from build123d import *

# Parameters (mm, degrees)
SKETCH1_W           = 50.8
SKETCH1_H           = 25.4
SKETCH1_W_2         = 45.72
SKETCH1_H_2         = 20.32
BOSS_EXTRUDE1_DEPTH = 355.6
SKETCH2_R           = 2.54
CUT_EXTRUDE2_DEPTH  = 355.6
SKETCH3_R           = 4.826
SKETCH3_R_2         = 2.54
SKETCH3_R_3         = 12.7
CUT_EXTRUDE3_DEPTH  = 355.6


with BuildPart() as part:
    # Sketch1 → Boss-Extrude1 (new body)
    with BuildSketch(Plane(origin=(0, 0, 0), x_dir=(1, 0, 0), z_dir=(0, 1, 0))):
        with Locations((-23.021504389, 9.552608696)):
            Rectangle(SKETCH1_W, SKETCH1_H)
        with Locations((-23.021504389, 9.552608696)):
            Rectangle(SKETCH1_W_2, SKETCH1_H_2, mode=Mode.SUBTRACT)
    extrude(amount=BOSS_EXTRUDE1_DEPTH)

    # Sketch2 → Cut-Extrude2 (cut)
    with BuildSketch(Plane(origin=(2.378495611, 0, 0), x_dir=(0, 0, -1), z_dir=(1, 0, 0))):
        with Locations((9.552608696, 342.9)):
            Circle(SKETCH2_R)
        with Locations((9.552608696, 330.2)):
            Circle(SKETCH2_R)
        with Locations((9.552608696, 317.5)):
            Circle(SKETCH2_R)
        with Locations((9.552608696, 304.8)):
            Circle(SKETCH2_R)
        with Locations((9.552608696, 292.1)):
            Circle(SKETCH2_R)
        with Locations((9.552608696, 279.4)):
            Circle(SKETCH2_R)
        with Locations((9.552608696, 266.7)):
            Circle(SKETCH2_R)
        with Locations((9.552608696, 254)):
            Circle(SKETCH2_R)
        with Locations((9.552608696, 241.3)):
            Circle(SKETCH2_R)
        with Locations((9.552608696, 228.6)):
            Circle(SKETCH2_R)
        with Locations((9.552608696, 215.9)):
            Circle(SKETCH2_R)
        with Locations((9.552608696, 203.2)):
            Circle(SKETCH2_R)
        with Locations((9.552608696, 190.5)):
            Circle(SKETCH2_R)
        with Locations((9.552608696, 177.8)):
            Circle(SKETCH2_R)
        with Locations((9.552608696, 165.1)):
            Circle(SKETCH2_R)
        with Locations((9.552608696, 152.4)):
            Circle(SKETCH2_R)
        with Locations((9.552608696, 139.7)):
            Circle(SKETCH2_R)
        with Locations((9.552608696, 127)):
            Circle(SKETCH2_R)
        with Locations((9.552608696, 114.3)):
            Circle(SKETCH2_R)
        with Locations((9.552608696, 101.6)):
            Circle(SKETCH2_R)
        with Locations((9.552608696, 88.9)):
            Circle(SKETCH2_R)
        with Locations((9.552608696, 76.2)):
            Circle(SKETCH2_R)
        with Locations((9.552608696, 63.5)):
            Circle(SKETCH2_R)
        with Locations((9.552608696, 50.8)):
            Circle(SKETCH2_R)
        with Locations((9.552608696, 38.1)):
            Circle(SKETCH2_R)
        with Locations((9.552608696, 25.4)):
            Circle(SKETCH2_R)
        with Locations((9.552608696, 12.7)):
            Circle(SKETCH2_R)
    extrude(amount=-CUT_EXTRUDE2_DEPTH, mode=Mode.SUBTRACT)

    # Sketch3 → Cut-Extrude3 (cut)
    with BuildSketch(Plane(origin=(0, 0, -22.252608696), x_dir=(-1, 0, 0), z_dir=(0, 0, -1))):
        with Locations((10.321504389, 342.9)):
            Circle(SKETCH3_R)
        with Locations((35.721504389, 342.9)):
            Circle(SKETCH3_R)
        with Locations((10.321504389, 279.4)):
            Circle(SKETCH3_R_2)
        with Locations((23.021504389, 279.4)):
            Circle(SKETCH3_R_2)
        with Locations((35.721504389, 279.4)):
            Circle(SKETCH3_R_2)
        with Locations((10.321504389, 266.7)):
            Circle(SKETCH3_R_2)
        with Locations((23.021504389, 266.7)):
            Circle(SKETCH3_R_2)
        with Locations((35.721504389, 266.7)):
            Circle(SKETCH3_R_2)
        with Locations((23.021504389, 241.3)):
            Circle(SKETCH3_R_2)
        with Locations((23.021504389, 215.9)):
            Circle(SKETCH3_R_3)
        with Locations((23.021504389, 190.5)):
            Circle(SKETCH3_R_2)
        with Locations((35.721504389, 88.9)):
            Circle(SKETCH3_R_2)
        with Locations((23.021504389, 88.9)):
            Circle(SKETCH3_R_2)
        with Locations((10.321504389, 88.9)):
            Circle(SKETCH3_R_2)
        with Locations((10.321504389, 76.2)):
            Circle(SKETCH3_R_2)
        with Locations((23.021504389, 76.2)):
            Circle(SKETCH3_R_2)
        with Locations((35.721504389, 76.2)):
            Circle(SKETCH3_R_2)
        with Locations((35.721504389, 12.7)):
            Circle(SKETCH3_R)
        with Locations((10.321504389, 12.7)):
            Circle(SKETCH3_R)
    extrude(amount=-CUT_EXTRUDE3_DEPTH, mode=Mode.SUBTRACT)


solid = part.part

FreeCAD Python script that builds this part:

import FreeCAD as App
import Part
import Sketcher

V = App.Vector
Q = App.Units.Quantity

doc = App.newDocument("Part")
params = doc.addObject("Spreadsheet::Sheet", "Params")
for row, (alias, value) in enumerate([
    ("sketch1_width", "2 in"),
    ("sketch1_height", "1 in"),
    ("sketch1_width2", "1.8 in"),
    ("sketch1_height2", "0.8 in"),
    ("pad1_length", "14 in"),
    ("sketch2_diameter", "0.2 in"),
    ("pocket1_length", "14 in"),
    ("sketch3_diameter", "1 in"),
    ("sketch3_diameter2", "0.2 in"),
    ("sketch3_diameter3", "0.38 in"),
    ("pocket2_length", "14 in"),
], start=1):
    params.set(f"A{row}", alias)
    params.set(f"B{row}", "=" + value)
    params.setAlias(f"B{row}", alias)

body = doc.addObject("PartDesign::Body", "Body")

# Sketch on XZ plane
sketch1 = body.newObject("Sketcher::SketchObject", "Sketch")
sketch1.AttachmentSupport = (doc.getObject("XZ_Plane"), [""])
sketch1.MapMode = "FlatFace"
sketch1.addGeometry(Part.LineSegment(V(-48.421504, -22.252609, 0), V(-48.421504, 3.147391, 0)), False)
sketch1.addGeometry(Part.LineSegment(V(-48.421504, 3.147391, 0), V(2.378496, 3.147391, 0)), False)
sketch1.addGeometry(Part.LineSegment(V(2.378496, 3.147391, 0), V(2.378496, -22.252609, 0)), False)
sketch1.addGeometry(Part.LineSegment(V(2.378496, -22.252609, 0), V(-48.421504, -22.252609, 0)), False)
sketch1.addGeometry(Part.LineSegment(V(-0.161504, 0.607391, 0), V(-45.881504, 0.607391, 0)), False)
sketch1.addGeometry(Part.LineSegment(V(-45.881504, 0.607391, 0), V(-45.881504, -19.712609, 0)), False)
sketch1.addGeometry(Part.LineSegment(V(-45.881504, -19.712609, 0), V(-0.161504, -19.712609, 0)), False)
sketch1.addGeometry(Part.LineSegment(V(-0.161504, -19.712609, 0), V(-0.161504, 0.607391, 0)), False)
sketch1.addConstraint(Sketcher.Constraint("Coincident", 0, 2, 1, 1))
sketch1.addConstraint(Sketcher.Constraint("Coincident", 1, 2, 2, 1))
sketch1.addConstraint(Sketcher.Constraint("Coincident", 2, 2, 3, 1))
sketch1.addConstraint(Sketcher.Constraint("Coincident", 3, 2, 0, 1))
sketch1.addConstraint(Sketcher.Constraint("Coincident", 4, 2, 5, 1))
sketch1.addConstraint(Sketcher.Constraint("Coincident", 5, 2, 6, 1))
sketch1.addConstraint(Sketcher.Constraint("Coincident", 6, 2, 7, 1))
sketch1.addConstraint(Sketcher.Constraint("Coincident", 7, 2, 4, 1))
sketch1.addConstraint(Sketcher.Constraint("Vertical", 0))
sketch1.addConstraint(Sketcher.Constraint("Horizontal", 1))
sketch1.addConstraint(Sketcher.Constraint("Vertical", 2))
sketch1.addConstraint(Sketcher.Constraint("Horizontal", 3))
sketch1.addConstraint(Sketcher.Constraint("Horizontal", 4))
sketch1.addConstraint(Sketcher.Constraint("Vertical", 5))
sketch1.addConstraint(Sketcher.Constraint("Horizontal", 6))
sketch1.addConstraint(Sketcher.Constraint("Vertical", 7))
sketch1.addConstraint(Sketcher.Constraint("DistanceX", 1, 1, 1, 2, Q("2 in")))
sketch1.addConstraint(Sketcher.Constraint("DistanceY", 0, 1, 0, 2, Q("1 in")))
sketch1.addConstraint(Sketcher.Constraint("DistanceX", 4, 2, 4, 1, Q("1.8 in")))
sketch1.addConstraint(Sketcher.Constraint("DistanceY", 5, 2, 5, 1, Q("0.8 in")))
sketch1.addConstraint(Sketcher.Constraint("DistanceX", 0, 2, 4, 2, Q("0.1 in")))
sketch1.addConstraint(Sketcher.Constraint("DistanceY", 4, 2, 0, 2, Q("0.1 in")))
sketch1.addConstraint(Sketcher.Constraint("DistanceY", -1, 1, 0, 2, Q("3.147391 mm")))
sketch1.addConstraint(Sketcher.Constraint("DistanceX", 0, 2, -1, 1, Q("48.421504 mm")))
sketch1.setExpression("Constraints[16]", "Params.sketch1_width")
sketch1.setExpression("Constraints[17]", "Params.sketch1_height")
sketch1.setExpression("Constraints[18]", "Params.sketch1_width2")
sketch1.setExpression("Constraints[19]", "Params.sketch1_height2")
pad1 = body.newObject("PartDesign::Pad", "Pad")
pad1.Profile = sketch1
pad1.setExpression("Length", "Params.pad1_length")
pad1.Reversed = True

# Sketch on YZ plane
sketch2 = body.newObject("Sketcher::SketchObject", "Sketch001")
sketch2.AttachmentSupport = (doc.getObject("YZ_Plane"), [""])
sketch2.MapMode = "FlatFace"
sketch2.AttachmentOffset = App.Placement(V(0, 0, 2.378496), App.Rotation())
sketch2.addGeometry(Part.Circle(V(342.9, -9.552609, 0), V(0, 0, 1), 2.54), False)
sketch2.addGeometry(Part.Circle(V(330.2, -9.552609, 0), V(0, 0, 1), 2.54), False)
sketch2.addGeometry(Part.Circle(V(317.5, -9.552609, 0), V(0, 0, 1), 2.54), False)
sketch2.addGeometry(Part.Circle(V(304.8, -9.552609, 0), V(0, 0, 1), 2.54), False)
sketch2.addGeometry(Part.Circle(V(292.1, -9.552609, 0), V(0, 0, 1), 2.54), False)
sketch2.addGeometry(Part.Circle(V(279.4, -9.552609, 0), V(0, 0, 1), 2.54), False)
sketch2.addGeometry(Part.Circle(V(266.7, -9.552609, 0), V(0, 0, 1), 2.54), False)
sketch2.addGeometry(Part.Circle(V(254, -9.552609, 0), V(0, 0, 1), 2.54), False)
sketch2.addGeometry(Part.Circle(V(241.3, -9.552609, 0), V(0, 0, 1), 2.54), False)
sketch2.addGeometry(Part.Circle(V(228.6, -9.552609, 0), V(0, 0, 1), 2.54), False)
sketch2.addGeometry(Part.Circle(V(215.9, -9.552609, 0), V(0, 0, 1), 2.54), False)
sketch2.addGeometry(Part.Circle(V(203.2, -9.552609, 0), V(0, 0, 1), 2.54), False)
sketch2.addGeometry(Part.Circle(V(190.5, -9.552609, 0), V(0, 0, 1), 2.54), False)
sketch2.addGeometry(Part.Circle(V(177.8, -9.552609, 0), V(0, 0, 1), 2.54), False)
sketch2.addGeometry(Part.Circle(V(165.1, -9.552609, 0), V(0, 0, 1), 2.54), False)
sketch2.addGeometry(Part.Circle(V(152.4, -9.552609, 0), V(0, 0, 1), 2.54), False)
sketch2.addGeometry(Part.Circle(V(139.7, -9.552609, 0), V(0, 0, 1), 2.54), False)
sketch2.addGeometry(Part.Circle(V(127, -9.552609, 0), V(0, 0, 1), 2.54), False)
sketch2.addGeometry(Part.Circle(V(114.3, -9.552609, 0), V(0, 0, 1), 2.54), False)
sketch2.addGeometry(Part.Circle(V(101.6, -9.552609, 0), V(0, 0, 1), 2.54), False)
sketch2.addGeometry(Part.Circle(V(88.9, -9.552609, 0), V(0, 0, 1), 2.54), False)
sketch2.addGeometry(Part.Circle(V(76.2, -9.552609, 0), V(0, 0, 1), 2.54), False)
sketch2.addGeometry(Part.Circle(V(63.5, -9.552609, 0), V(0, 0, 1), 2.54), False)
sketch2.addGeometry(Part.Circle(V(50.8, -9.552609, 0), V(0, 0, 1), 2.54), False)
sketch2.addGeometry(Part.Circle(V(38.1, -9.552609, 0), V(0, 0, 1), 2.54), False)
sketch2.addGeometry(Part.Circle(V(25.4, -9.552609, 0), V(0, 0, 1), 2.54), False)
sketch2.addGeometry(Part.Circle(V(12.7, -9.552609, 0), V(0, 0, 1), 2.54), False)
sketch2.addConstraint(Sketcher.Constraint("Equal", 0, 1))
sketch2.addConstraint(Sketcher.Constraint("Equal", 1, 2))
sketch2.addConstraint(Sketcher.Constraint("Equal", 2, 3))
sketch2.addConstraint(Sketcher.Constraint("Equal", 3, 4))
sketch2.addConstraint(Sketcher.Constraint("Equal", 4, 5))
sketch2.addConstraint(Sketcher.Constraint("Equal", 5, 6))
sketch2.addConstraint(Sketcher.Constraint("Equal", 6, 7))
sketch2.addConstraint(Sketcher.Constraint("Equal", 7, 8))
sketch2.addConstraint(Sketcher.Constraint("Equal", 8, 9))
sketch2.addConstraint(Sketcher.Constraint("Equal", 9, 10))
sketch2.addConstraint(Sketcher.Constraint("Equal", 10, 11))
sketch2.addConstraint(Sketcher.Constraint("Equal", 11, 12))
sketch2.addConstraint(Sketcher.Constraint("Equal", 12, 13))
sketch2.addConstraint(Sketcher.Constraint("Equal", 13, 14))
sketch2.addConstraint(Sketcher.Constraint("Equal", 14, 15))
sketch2.addConstraint(Sketcher.Constraint("Equal", 15, 16))
sketch2.addConstraint(Sketcher.Constraint("Equal", 16, 17))
sketch2.addConstraint(Sketcher.Constraint("Equal", 17, 18))
sketch2.addConstraint(Sketcher.Constraint("Equal", 18, 19))
sketch2.addConstraint(Sketcher.Constraint("Equal", 19, 20))
sketch2.addConstraint(Sketcher.Constraint("Equal", 20, 21))
sketch2.addConstraint(Sketcher.Constraint("Equal", 21, 22))
sketch2.addConstraint(Sketcher.Constraint("Equal", 22, 23))
sketch2.addConstraint(Sketcher.Constraint("Equal", 23, 24))
sketch2.addConstraint(Sketcher.Constraint("Equal", 24, 25))
sketch2.addConstraint(Sketcher.Constraint("Equal", 25, 26))
sketch2.addConstraint(Sketcher.Constraint("Horizontal", 0, 3, 1, 3))
sketch2.addConstraint(Sketcher.Constraint("Horizontal", 1, 3, 2, 3))
sketch2.addConstraint(Sketcher.Constraint("Horizontal", 2, 3, 3, 3))
sketch2.addConstraint(Sketcher.Constraint("Horizontal", 3, 3, 4, 3))
sketch2.addConstraint(Sketcher.Constraint("Horizontal", 4, 3, 5, 3))
sketch2.addConstraint(Sketcher.Constraint("Horizontal", 5, 3, 6, 3))
sketch2.addConstraint(Sketcher.Constraint("Horizontal", 6, 3, 7, 3))
sketch2.addConstraint(Sketcher.Constraint("Horizontal", 7, 3, 8, 3))
sketch2.addConstraint(Sketcher.Constraint("Horizontal", 8, 3, 9, 3))
sketch2.addConstraint(Sketcher.Constraint("Horizontal", 9, 3, 10, 3))
sketch2.addConstraint(Sketcher.Constraint("Horizontal", 10, 3, 11, 3))
sketch2.addConstraint(Sketcher.Constraint("Horizontal", 11, 3, 12, 3))
sketch2.addConstraint(Sketcher.Constraint("Horizontal", 12, 3, 13, 3))
sketch2.addConstraint(Sketcher.Constraint("Horizontal", 13, 3, 14, 3))
sketch2.addConstraint(Sketcher.Constraint("Horizontal", 14, 3, 15, 3))
sketch2.addConstraint(Sketcher.Constraint("Horizontal", 15, 3, 16, 3))
sketch2.addConstraint(Sketcher.Constraint("Horizontal", 16, 3, 17, 3))
sketch2.addConstraint(Sketcher.Constraint("Horizontal", 17, 3, 18, 3))
sketch2.addConstraint(Sketcher.Constraint("Horizontal", 18, 3, 19, 3))
sketch2.addConstraint(Sketcher.Constraint("Horizontal", 19, 3, 20, 3))
sketch2.addConstraint(Sketcher.Constraint("Horizontal", 20, 3, 21, 3))
sketch2.addConstraint(Sketcher.Constraint("Horizontal", 21, 3, 22, 3))
sketch2.addConstraint(Sketcher.Constraint("Horizontal", 22, 3, 23, 3))
sketch2.addConstraint(Sketcher.Constraint("Horizontal", 23, 3, 24, 3))
sketch2.addConstraint(Sketcher.Constraint("Horizontal", 24, 3, 25, 3))
sketch2.addConstraint(Sketcher.Constraint("Horizontal", 25, 3, 26, 3))
sketch2.addConstraint(Sketcher.Constraint("Diameter", 0, Q("0.2 in")))
sketch2.addConstraint(Sketcher.Constraint("DistanceX", -1, 1, 1, 3, Q("13 in")))
sketch2.addConstraint(Sketcher.Constraint("DistanceX", -1, 1, 3, 3, Q("12 in")))
sketch2.addConstraint(Sketcher.Constraint("DistanceX", -1, 1, 5, 3, Q("11 in")))
sketch2.addConstraint(Sketcher.Constraint("DistanceX", -1, 1, 7, 3, Q("10 in")))
sketch2.addConstraint(Sketcher.Constraint("DistanceX", -1, 1, 9, 3, Q("9 in")))
sketch2.addConstraint(Sketcher.Constraint("DistanceX", -1, 1, 11, 3, Q("8 in")))
sketch2.addConstraint(Sketcher.Constraint("DistanceX", -1, 1, 13, 3, Q("7 in")))
sketch2.addConstraint(Sketcher.Constraint("DistanceX", -1, 1, 15, 3, Q("6 in")))
sketch2.addConstraint(Sketcher.Constraint("DistanceX", -1, 1, 17, 3, Q("5 in")))
sketch2.addConstraint(Sketcher.Constraint("DistanceX", -1, 1, 19, 3, Q("4 in")))
sketch2.addConstraint(Sketcher.Constraint("DistanceX", -1, 1, 21, 3, Q("3 in")))
sketch2.addConstraint(Sketcher.Constraint("DistanceX", -1, 1, 23, 3, Q("2 in")))
sketch2.addConstraint(Sketcher.Constraint("DistanceX", -1, 1, 25, 3, Q("1 in")))
sketch2.addConstraint(Sketcher.Constraint("DistanceX", 2, 3, 0, 3, Q("1 in")))
sketch2.addConstraint(Sketcher.Constraint("DistanceX", 4, 3, 2, 3, Q("1 in")))
sketch2.addConstraint(Sketcher.Constraint("DistanceX", 6, 3, 4, 3, Q("1 in")))
sketch2.addConstraint(Sketcher.Constraint("DistanceX", 8, 3, 6, 3, Q("1 in")))
sketch2.addConstraint(Sketcher.Constraint("DistanceX", 10, 3, 8, 3, Q("1 in")))
sketch2.addConstraint(Sketcher.Constraint("DistanceX", 12, 3, 10, 3, Q("1 in")))
sketch2.addConstraint(Sketcher.Constraint("DistanceX", 14, 3, 12, 3, Q("1 in")))
sketch2.addConstraint(Sketcher.Constraint("DistanceX", 16, 3, 14, 3, Q("1 in")))
sketch2.addConstraint(Sketcher.Constraint("DistanceX", 18, 3, 16, 3, Q("1 in")))
sketch2.addConstraint(Sketcher.Constraint("DistanceX", 20, 3, 18, 3, Q("1 in")))
sketch2.addConstraint(Sketcher.Constraint("DistanceX", 22, 3, 20, 3, Q("1 in")))
sketch2.addConstraint(Sketcher.Constraint("DistanceX", 24, 3, 22, 3, Q("1 in")))
sketch2.addConstraint(Sketcher.Constraint("DistanceX", 26, 3, 24, 3, Q("1 in")))
sketch2.addConstraint(Sketcher.Constraint("DistanceX", -1, 1, 0, 3, Q("13.5 in")))
sketch2.addConstraint(Sketcher.Constraint("DistanceY", 0, 3, -1, 1, Q("9.552609 mm")))
sketch2.setExpression("Constraints[52]", "Params.sketch2_diameter")
pocket1 = body.newObject("PartDesign::Pocket", "Pocket")
pocket1.Profile = sketch2
pocket1.setExpression("Length", "Params.pocket1_length")

# Sketch on XY plane
sketch3 = body.newObject("Sketcher::SketchObject", "Sketch002")
sketch3.AttachmentSupport = (doc.getObject("XY_Plane"), [""])
sketch3.MapMode = "FlatFace"
sketch3.AttachmentOffset = App.Placement(V(0, 0, -22.252609), App.Rotation())
sketch3.addGeometry(Part.Circle(V(-10.321504, 342.9, 0), V(0, 0, 1), 4.826), False)
sketch3.addGeometry(Part.Circle(V(-35.721504, 342.9, 0), V(0, 0, 1), 4.826), False)
sketch3.addGeometry(Part.Circle(V(-10.321504, 279.4, 0), V(0, 0, 1), 2.54), False)
sketch3.addGeometry(Part.Circle(V(-23.021504, 279.4, 0), V(0, 0, 1), 2.54), False)
sketch3.addGeometry(Part.Circle(V(-35.721504, 279.4, 0), V(0, 0, 1), 2.54), False)
sketch3.addGeometry(Part.Circle(V(-10.321504, 266.7, 0), V(0, 0, 1), 2.54), False)
sketch3.addGeometry(Part.Circle(V(-23.021504, 266.7, 0), V(0, 0, 1), 2.54), False)
sketch3.addGeometry(Part.Circle(V(-35.721504, 266.7, 0), V(0, 0, 1), 2.54), False)
sketch3.addGeometry(Part.Circle(V(-23.021504, 241.3, 0), V(0, 0, 1), 2.54), False)
sketch3.addGeometry(Part.Circle(V(-23.021504, 215.9, 0), V(0, 0, 1), 12.7), False)
sketch3.addGeometry(Part.Circle(V(-23.021504, 190.5, 0), V(0, 0, 1), 2.54), False)
sketch3.addGeometry(Part.Circle(V(-35.721504, 88.9, 0), V(0, 0, 1), 2.54), False)
sketch3.addGeometry(Part.Circle(V(-23.021504, 88.9, 0), V(0, 0, 1), 2.54), False)
sketch3.addGeometry(Part.Circle(V(-10.321504, 88.9, 0), V(0, 0, 1), 2.54), False)
sketch3.addGeometry(Part.Circle(V(-10.321504, 76.2, 0), V(0, 0, 1), 2.54), False)
sketch3.addGeometry(Part.Circle(V(-23.021504, 76.2, 0), V(0, 0, 1), 2.54), False)
sketch3.addGeometry(Part.Circle(V(-35.721504, 76.2, 0), V(0, 0, 1), 2.54), False)
sketch3.addGeometry(Part.Circle(V(-35.721504, 12.7, 0), V(0, 0, 1), 4.826), False)
sketch3.addGeometry(Part.Circle(V(-10.321504, 12.7, 0), V(0, 0, 1), 4.826), False)
sketch3.addConstraint(Sketcher.Constraint("Equal", 0, 1))
sketch3.addConstraint(Sketcher.Constraint("Equal", 2, 3))
sketch3.addConstraint(Sketcher.Constraint("Equal", 3, 4))
sketch3.addConstraint(Sketcher.Constraint("Equal", 4, 5))
sketch3.addConstraint(Sketcher.Constraint("Equal", 5, 6))
sketch3.addConstraint(Sketcher.Constraint("Equal", 6, 7))
sketch3.addConstraint(Sketcher.Constraint("Equal", 7, 8))
sketch3.addConstraint(Sketcher.Constraint("Equal", 8, 10))
sketch3.addConstraint(Sketcher.Constraint("Equal", 10, 11))
sketch3.addConstraint(Sketcher.Constraint("Equal", 11, 12))
sketch3.addConstraint(Sketcher.Constraint("Equal", 12, 13))
sketch3.addConstraint(Sketcher.Constraint("Equal", 13, 14))
sketch3.addConstraint(Sketcher.Constraint("Equal", 14, 15))
sketch3.addConstraint(Sketcher.Constraint("Equal", 15, 16))
sketch3.addConstraint(Sketcher.Constraint("Equal", 1, 17))
sketch3.addConstraint(Sketcher.Constraint("Equal", 17, 18))
sketch3.addConstraint(Sketcher.Constraint("Horizontal", 0, 3, 1, 3))
sketch3.addConstraint(Sketcher.Constraint("Horizontal", 2, 3, 3, 3))
sketch3.addConstraint(Sketcher.Constraint("Horizontal", 3, 3, 4, 3))
sketch3.addConstraint(Sketcher.Constraint("Horizontal", 5, 3, 6, 3))
sketch3.addConstraint(Sketcher.Constraint("Horizontal", 6, 3, 7, 3))
sketch3.addConstraint(Sketcher.Constraint("Horizontal", 11, 3, 12, 3))
sketch3.addConstraint(Sketcher.Constraint("Horizontal", 12, 3, 13, 3))
sketch3.addConstraint(Sketcher.Constraint("Horizontal", 14, 3, 15, 3))
sketch3.addConstraint(Sketcher.Constraint("Horizontal", 15, 3, 16, 3))
sketch3.addConstraint(Sketcher.Constraint("Horizontal", 17, 3, 18, 3))
sketch3.addConstraint(Sketcher.Constraint("Vertical", 0, 3, 2, 3))
sketch3.addConstraint(Sketcher.Constraint("Vertical", 1, 3, 4, 3))
sketch3.addConstraint(Sketcher.Constraint("Vertical", 2, 3, 5, 3))
sketch3.addConstraint(Sketcher.Constraint("Vertical", 3, 3, 6, 3))
sketch3.addConstraint(Sketcher.Constraint("Vertical", 4, 3, 7, 3))
sketch3.addConstraint(Sketcher.Constraint("Vertical", 6, 3, 8, 3))
sketch3.addConstraint(Sketcher.Constraint("Vertical", 8, 3, 9, 3))
sketch3.addConstraint(Sketcher.Constraint("Vertical", 9, 3, 10, 3))
sketch3.addConstraint(Sketcher.Constraint("Vertical", 7, 3, 11, 3))
sketch3.addConstraint(Sketcher.Constraint("Vertical", 10, 3, 12, 3))
sketch3.addConstraint(Sketcher.Constraint("Vertical", 5, 3, 13, 3))
sketch3.addConstraint(Sketcher.Constraint("Vertical", 13, 3, 14, 3))
sketch3.addConstraint(Sketcher.Constraint("Vertical", 12, 3, 15, 3))
sketch3.addConstraint(Sketcher.Constraint("Vertical", 11, 3, 16, 3))
sketch3.addConstraint(Sketcher.Constraint("Vertical", 16, 3, 17, 3))
sketch3.addConstraint(Sketcher.Constraint("Vertical", 14, 3, 18, 3))
sketch3.addConstraint(Sketcher.Constraint("Diameter", 9, Q("1 in")))
sketch3.addConstraint(Sketcher.Constraint("Diameter", 2, Q("0.2 in")))
sketch3.addConstraint(Sketcher.Constraint("Diameter", 0, Q("0.38 in")))
sketch3.addConstraint(Sketcher.Constraint("DistanceY", -1, 1, 2, 3, Q("11 in")))
sketch3.addConstraint(Sketcher.Constraint("DistanceY", -1, 1, 14, 3, Q("3 in")))
sketch3.addConstraint(Sketcher.Constraint("DistanceX", 1, 3, 0, 3, Q("1 in")))
sketch3.addConstraint(Sketcher.Constraint("DistanceY", 5, 3, 0, 3, Q("3 in")))
sketch3.addConstraint(Sketcher.Constraint("DistanceY", 8, 3, 6, 3, Q("1 in")))
sketch3.addConstraint(Sketcher.Constraint("DistanceY", 9, 3, 8, 3, Q("1 in")))
sketch3.addConstraint(Sketcher.Constraint("DistanceY", 10, 3, 9, 3, Q("1 in")))
sketch3.addConstraint(Sketcher.Constraint("DistanceY", 11, 3, 10, 3, Q("4 in")))
sketch3.addConstraint(Sketcher.Constraint("DistanceY", 17, 3, 11, 3, Q("3 in")))
sketch3.addConstraint(Sketcher.Constraint("DistanceY", -1, 1, 0, 3, Q("13.5 in")))
sketch3.addConstraint(Sketcher.Constraint("DistanceX", 3, 3, 2, 3, Q("0.5 in")))
sketch3.addConstraint(Sketcher.Constraint("DistanceX", 0, 3, -1, 1, Q("10.321504 mm")))
sketch3.setExpression("Constraints[42]", "Params.sketch3_diameter")
sketch3.setExpression("Constraints[43]", "Params.sketch3_diameter2")
sketch3.setExpression("Constraints[44]", "Params.sketch3_diameter3")
pocket2 = body.newObject("PartDesign::Pocket", "Pocket001")
pocket2.Profile = sketch3
pocket2.setExpression("Length", "Params.pocket2_length")
pocket2.Reversed = True

doc.recompute()
